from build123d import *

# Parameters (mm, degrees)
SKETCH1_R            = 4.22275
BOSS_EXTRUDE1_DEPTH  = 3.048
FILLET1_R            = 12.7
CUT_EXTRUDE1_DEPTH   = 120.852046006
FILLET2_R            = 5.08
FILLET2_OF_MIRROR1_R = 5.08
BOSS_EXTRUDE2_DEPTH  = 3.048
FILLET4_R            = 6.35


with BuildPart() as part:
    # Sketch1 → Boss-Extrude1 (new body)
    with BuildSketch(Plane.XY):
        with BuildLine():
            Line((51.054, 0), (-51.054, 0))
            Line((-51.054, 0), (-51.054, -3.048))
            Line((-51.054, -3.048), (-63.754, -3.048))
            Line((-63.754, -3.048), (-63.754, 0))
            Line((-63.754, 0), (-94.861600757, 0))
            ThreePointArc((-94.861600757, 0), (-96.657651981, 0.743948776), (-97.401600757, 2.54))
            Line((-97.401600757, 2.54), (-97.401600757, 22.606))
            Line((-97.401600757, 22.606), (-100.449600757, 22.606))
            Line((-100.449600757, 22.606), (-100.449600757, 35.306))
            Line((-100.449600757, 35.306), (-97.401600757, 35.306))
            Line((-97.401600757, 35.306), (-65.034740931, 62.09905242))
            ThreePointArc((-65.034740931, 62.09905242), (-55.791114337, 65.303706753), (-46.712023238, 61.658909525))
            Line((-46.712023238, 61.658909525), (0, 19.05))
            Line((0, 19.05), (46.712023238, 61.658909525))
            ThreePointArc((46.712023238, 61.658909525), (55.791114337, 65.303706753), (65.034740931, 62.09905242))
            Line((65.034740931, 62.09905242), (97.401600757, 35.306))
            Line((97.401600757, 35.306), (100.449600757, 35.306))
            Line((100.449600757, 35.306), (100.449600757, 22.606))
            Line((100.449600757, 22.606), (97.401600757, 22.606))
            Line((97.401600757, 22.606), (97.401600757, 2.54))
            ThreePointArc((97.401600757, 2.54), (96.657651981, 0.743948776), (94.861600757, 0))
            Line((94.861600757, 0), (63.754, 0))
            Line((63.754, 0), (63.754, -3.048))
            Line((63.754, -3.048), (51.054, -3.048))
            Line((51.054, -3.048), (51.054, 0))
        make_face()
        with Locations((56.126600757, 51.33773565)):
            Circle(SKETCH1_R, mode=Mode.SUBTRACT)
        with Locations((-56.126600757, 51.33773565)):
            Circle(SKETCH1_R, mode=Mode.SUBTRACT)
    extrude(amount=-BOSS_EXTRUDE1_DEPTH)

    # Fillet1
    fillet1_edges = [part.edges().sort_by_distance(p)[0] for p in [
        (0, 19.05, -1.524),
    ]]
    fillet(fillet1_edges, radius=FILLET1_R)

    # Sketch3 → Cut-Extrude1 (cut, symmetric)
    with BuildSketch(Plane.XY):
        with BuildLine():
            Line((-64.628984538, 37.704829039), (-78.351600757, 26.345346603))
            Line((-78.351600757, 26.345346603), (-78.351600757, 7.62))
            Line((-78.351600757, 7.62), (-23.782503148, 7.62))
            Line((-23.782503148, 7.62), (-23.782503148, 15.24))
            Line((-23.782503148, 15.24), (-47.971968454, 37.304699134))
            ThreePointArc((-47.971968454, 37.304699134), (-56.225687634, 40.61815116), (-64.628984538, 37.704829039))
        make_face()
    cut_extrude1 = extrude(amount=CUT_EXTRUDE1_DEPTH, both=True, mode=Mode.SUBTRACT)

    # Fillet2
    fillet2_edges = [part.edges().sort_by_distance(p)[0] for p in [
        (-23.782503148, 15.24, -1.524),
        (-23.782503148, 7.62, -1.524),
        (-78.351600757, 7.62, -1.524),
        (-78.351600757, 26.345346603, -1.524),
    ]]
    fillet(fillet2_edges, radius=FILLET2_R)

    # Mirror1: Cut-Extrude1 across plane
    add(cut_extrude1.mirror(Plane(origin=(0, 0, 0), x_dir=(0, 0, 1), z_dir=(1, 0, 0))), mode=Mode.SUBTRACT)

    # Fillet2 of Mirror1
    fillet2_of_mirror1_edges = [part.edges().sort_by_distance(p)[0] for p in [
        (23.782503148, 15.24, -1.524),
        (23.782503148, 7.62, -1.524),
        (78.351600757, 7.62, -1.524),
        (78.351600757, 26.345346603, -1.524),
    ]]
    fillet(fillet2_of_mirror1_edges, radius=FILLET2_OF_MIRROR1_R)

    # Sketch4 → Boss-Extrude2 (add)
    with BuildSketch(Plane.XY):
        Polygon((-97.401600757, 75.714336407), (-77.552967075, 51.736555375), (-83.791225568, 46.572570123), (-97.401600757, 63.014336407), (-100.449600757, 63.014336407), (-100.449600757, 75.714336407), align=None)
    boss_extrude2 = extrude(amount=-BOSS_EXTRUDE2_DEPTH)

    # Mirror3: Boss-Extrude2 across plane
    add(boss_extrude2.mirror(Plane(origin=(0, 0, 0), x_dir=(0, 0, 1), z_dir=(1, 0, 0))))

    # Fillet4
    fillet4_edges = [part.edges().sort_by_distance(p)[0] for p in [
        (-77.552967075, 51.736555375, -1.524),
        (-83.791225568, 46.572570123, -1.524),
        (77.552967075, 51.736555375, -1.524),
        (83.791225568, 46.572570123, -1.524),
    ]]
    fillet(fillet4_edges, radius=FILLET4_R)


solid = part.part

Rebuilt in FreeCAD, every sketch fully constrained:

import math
import FreeCAD as App
import Part
import Sketcher

V = App.Vector
Q = App.Units.Quantity


def edges_at(feature, points):
    """Names of the edges that pass closest to the given points."""
    edges = feature.Shape.Edges
    near = lambda p: min(range(len(edges)), key=lambda i: edges[i].distToShape(Part.Vertex(*p))[0])
    return sorted({f"Edge{near(p) + 1}" for p in points})


def add_polygon(sketch, points):
    """Adds a closed chain of lines whose ends are joined by coincident constraints."""
    first, n = sketch.GeometryCount, len(points)
    for a, b in zip(points, points[1:] + points[:1]):
        sketch.addGeometry(Part.LineSegment(App.Vector(*a, 0), App.Vector(*b, 0)), False)
    for i in range(n):
        sketch.addConstraint(Sketcher.Constraint("Coincident", first + i, 2, first + (i + 1) % n, 1))

doc = App.newDocument("Part")
body = doc.addObject("PartDesign::Body", "Body")

# Sketch on XY plane
sketch1 = body.newObject("Sketcher::SketchObject", "Sketch")
sketch1.AttachmentSupport = (doc.getObject("XY_Plane"), [""])
sketch1.MapMode = "FlatFace"
sketch1.addGeometry([
    Part.LineSegment(V(-51.054, 0, 0), V(51.054, 0, 0)),  # 0
    Part.LineSegment(V(51.054, 0, 0), V(51.054, -3.048, 0)),  # 1
    Part.LineSegment(V(51.054, -3.048, 0), V(63.754, -3.048, 0)),  # 2
    Part.LineSegment(V(63.754, -3.048, 0), V(63.754, 0, 0)),  # 3
    Part.LineSegment(V(63.754, 0, 0), V(94.861601, 0, 0)),  # 4
    Part.ArcOfCircle(Part.Circle(V(94.861601, 2.54, 0), V(0, 0, 1), 2.54), math.radians(-90), math.radians(0)),  # 5
    Part.LineSegment(V(97.401601, 2.54, 0), V(97.401601, 22.606, 0)),  # 6
    Part.LineSegment(V(97.401601, 22.606, 0), V(100.449601, 22.606, 0)),  # 7
    Part.LineSegment(V(100.449601, 22.606, 0), V(100.449601, 35.306, 0)),  # 8
    Part.LineSegment(V(100.449601, 35.306, 0), V(97.401601, 35.306, 0)),  # 9
    Part.LineSegment(V(97.401601, 35.306, 0), V(65.034741, 62.099052, 0)),  # 10
    Part.ArcOfCircle(Part.Circle(V(56.126601, 51.337736, 0), V(0, 0, 1), 13.97), math.radians(50.382288), math.radians(132.369867)),  # 11
    Part.LineSegment(V(46.712023, 61.65891, 0), V(0, 19.05, 0)),  # 12
    Part.LineSegment(V(0, 19.05, 0), V(-46.712023, 61.65891, 0)),  # 13
    Part.ArcOfCircle(Part.Circle(V(-56.126601, 51.337736, 0), V(0, 0, 1), 13.97), math.radians(47.630133), math.radians(129.617712)),  # 14
    Part.LineSegment(V(-65.034741, 62.099052, 0), V(-97.401601, 35.306, 0)),  # 15
    Part.LineSegment(V(-97.401601, 35.306, 0), V(-100.449601, 35.306, 0)),  # 16
    Part.LineSegment(V(-100.449601, 35.306, 0), V(-100.449601, 22.606, 0)),  # 17
    Part.LineSegment(V(-100.449601, 22.606, 0), V(-97.401601, 22.606, 0)),  # 18
    Part.LineSegment(V(-97.401601, 22.606, 0), V(-97.401601, 2.54, 0)),  # 19
    Part.ArcOfCircle(Part.Circle(V(-94.861601, 2.54, 0), V(0, 0, 1), 2.54), math.radians(-180), math.radians(-90)),  # 20
    Part.LineSegment(V(-94.861601, 0, 0), V(-63.754, 0, 0)),  # 21
    Part.LineSegment(V(-63.754, 0, 0), V(-63.754, -3.048, 0)),  # 22
    Part.LineSegment(V(-63.754, -3.048, 0), V(-51.054, -3.048, 0)),  # 23
    Part.LineSegment(V(-51.054, -3.048, 0), V(-51.054, 0, 0)),  # 24
    Part.Circle(V(56.126601, 51.337736, 0), V(0, 0, 1), 4.22275),  # 25
    Part.Circle(V(-56.126601, 51.337736, 0), V(0, 0, 1), 4.22275),  # 26
], False)
sketch1.addConstraint([
    Sketcher.Constraint("Coincident", 0, 2, 1, 1),
    Sketcher.Constraint("Coincident", 1, 2, 2, 1),
    Sketcher.Constraint("Coincident", 2, 2, 3, 1),
    Sketcher.Constraint("Coincident", 3, 2, 4, 1),
    Sketcher.Constraint("Tangent", 4, 2, 5, 1),
    Sketcher.Constraint("Tangent", 5, 2, 6, 1),
    Sketcher.Constraint("Coincident", 6, 2, 7, 1),
    Sketcher.Constraint("Coincident", 7, 2, 8, 1),
    Sketcher.Constraint("Coincident", 8, 2, 9, 1),
    Sketcher.Constraint("Coincident", 9, 2, 10, 1),
    Sketcher.Constraint("Tangent", 10, 2, 11, 1),
    Sketcher.Constraint("Tangent", 11, 2, 12, 1),
    Sketcher.Constraint("Coincident", 12, 2, 13, 1),
    Sketcher.Constraint("Tangent", 13, 2, 14, 1),
    Sketcher.Constraint("Tangent", 14, 2, 15, 1),
    Sketcher.Constraint("Coincident", 15, 2, 16, 1),
    Sketcher.Constraint("Coincident", 16, 2, 17, 1),
    Sketcher.Constraint("Coincident", 17, 2, 18, 1),
    Sketcher.Constraint("Coincident", 18, 2, 19, 1),
    Sketcher.Constraint("Tangent", 19, 2, 20, 1),
    Sketcher.Constraint("Tangent", 20, 2, 21, 1),
    Sketcher.Constraint("Coincident", 21, 2, 22, 1),
    Sketcher.Constraint("Coincident", 22, 2, 23, 1),
    Sketcher.Constraint("Coincident", 23, 2, 24, 1),
    Sketcher.Constraint("Coincident", 24, 2, 0, 1),
    Sketcher.Constraint("Horizontal", 0),
    Sketcher.Constraint("Vertical", 1),
    Sketcher.Constraint("Horizontal", 2),
    Sketcher.Constraint("Vertical", 3),
    Sketcher.Constraint("Horizontal", 4),
    Sketcher.Constraint("Vertical", 6),
    Sketcher.Constraint("Horizontal", 7),
    Sketcher.Constraint("Vertical", 8),
    Sketcher.Constraint("Horizontal", 9),
    Sketcher.Constraint("Horizontal", 16),
    Sketcher.Constraint("Vertical", 17),
    Sketcher.Constraint("Horizontal", 18),
    Sketcher.Constraint("Vertical", 19),
    Sketcher.Constraint("Horizontal", 21),
    Sketcher.Constraint("Vertical", 22),
    Sketcher.Constraint("Horizontal", 23),
    Sketcher.Constraint("Vertical", 24),
    Sketcher.Constraint("Coincident", 25, 3, 11, 3),
    Sketcher.Constraint("Coincident", 26, 3, 14, 3),
    Sketcher.Constraint("Equal", 11, 14),
    Sketcher.Constraint("Equal", 5, 20),
    Sketcher.Constraint("Equal", 25, 26),
    Sketcher.Constraint("Symmetric", 4, 2, 20, 2, -1, 1),
    Sketcher.Constraint("Symmetric", 0, 2, 24, 2, -1, 1),
    Sketcher.Constraint("Symmetric", 11, 3, 14, 3, -2),
    Sketcher.Constraint("Symmetric", 9, 2, 15, 2, -2),
    Sketcher.Constraint("Symmetric", 7, 2, 17, 2, -2),
    Sketcher.Constraint("Symmetric", 3, 2, 21, 2, -2),
    Sketcher.Constraint("PointOnObject", 12, 2, -2),
    Sketcher.Constraint("Horizontal", 2, 2, 22, 2),
    Sketcher.Constraint("Vertical", 6, 2, 9, 2),
    Sketcher.Constraint("Equal", 18, 1),
    Sketcher.Constraint("Equal", 23, 8),
    Sketcher.Constraint("Radius", 5, Q("0.1 in")),
    Sketcher.Constraint("Radius", 11, Q("0.55 in")),
    Sketcher.Constraint("DistanceX", 2, 1, 2, 2, Q("0.5 in")),
    Sketcher.Constraint("Diameter", 25, Q("0.3325 in")),
    Sketcher.Constraint("DistanceX", 0, 1, 0, 2, Q("4.02 in")),
    Sketcher.Constraint("DistanceX", 7, 1, 7, 2, Q("0.12 in")),
    Sketcher.Constraint("DistanceY", 6, 1, 6, 2, Q("0.79 in")),
    Sketcher.Constraint("DistanceY", -1, 1, 12, 2, Q("0.75 in")),
    Sketcher.Constraint("DistanceX", 11, 3, 5, 3, Q("1.525 in")),
    Sketcher.Constraint("DistanceX", 4, 1, 4, 2, 31.107601),
    Sketcher.Constraint("Distance", 10, 42.017631),
])
pad1 = body.newObject("PartDesign::Pad", "Pad")
pad1.Profile = sketch1
pad1.Length = Q("0.12 in")
pad1.Reversed = True
doc.recompute()

fillet = body.newObject("PartDesign::Fillet", "Fillet")
fillet.Base = (pad1, edges_at(pad1, [(0, 19.05, -1.524)]))
fillet.Radius = Q("0.5 in")

# Sketch on XY plane
sketch2 = body.newObject("Sketcher::SketchObject", "Sketch001")
sketch2.AttachmentSupport = (doc.getObject("XY_Plane"), [""])
sketch2.MapMode = "FlatFace"
sketch2.addGeometry([
    Part.LineSegment(V(-64.628985, 37.704829, 0), V(-78.351601, 26.345347, 0)),  # 0
    Part.LineSegment(V(-78.351601, 26.345347, 0), V(-78.351601, 7.62, 0)),  # 1
    Part.LineSegment(V(-78.351601, 7.62, 0), V(-23.782503, 7.62, 0)),  # 2
    Part.LineSegment(V(-23.782503, 7.62, 0), V(-23.782503, 15.24, 0)),  # 3
    Part.LineSegment(V(-23.782503, 15.24, 0), V(-47.971968, 37.304699, 0)),  # 4
    Part.ArcOfCircle(Part.Circle(V(-56.530675, 27.921814, 0), V(0, 0, 1), 12.7), math.radians(47.630133), math.radians(129.617712)),  # 5
], False)
sketch2.addConstraint([
    Sketcher.Constraint("Coincident", 0, 2, 1, 1),
    Sketcher.Constraint("Coincident", 1, 2, 2, 1),
    Sketcher.Constraint("Coincident", 2, 2, 3, 1),
    Sketcher.Constraint("Coincident", 3, 2, 4, 1),
    Sketcher.Constraint("Tangent", 4, 2, 5, 1),
    Sketcher.Constraint("Tangent", 5, 2, 0, 1),
    Sketcher.Constraint("Vertical", 1),
    Sketcher.Constraint("Horizontal", 2),
    Sketcher.Constraint("Vertical", 3),
    Sketcher.Constraint("Radius", 5, Q("0.5 in")),
    Sketcher.Constraint("DistanceY", 3, 1, 3, 2, Q("0.3 in")),
    Sketcher.Constraint("DistanceY", -1, 1, 1, 2, Q("0.3 in")),
    Sketcher.Constraint("DistanceX", 0, 2, -1, 1, 78.351601),
    Sketcher.Constraint("DistanceY", -1, 1, 4, 2, 37.304699),
    Sketcher.Constraint("DistanceX", 2, 1, 2, 2, 54.569098),
    Sketcher.Constraint("DistanceY", 1, 2, 1, 1, 18.725347),
    Sketcher.Constraint("DistanceX", 4, 2, -1, 1, 47.971968),
])
pocket1 = body.newObject("PartDesign::Pocket", "Pocket")
pocket1.Profile = sketch2
pocket1.Length = 241.704092
pocket1.Midplane = True
doc.recompute()

fillet2 = body.newObject("PartDesign::Fillet", "Fillet001")
fillet2.Base = (pocket1, edges_at(pocket1, [
    (-23.783, 15.24, -1.524),
    (-23.783, 7.62, -1.524),
    (-78.352, 7.62, -1.524),
    (-78.352, 26.345, -1.524),
]))
fillet2.Radius = Q("0.2 in")
doc.recompute()

mirrored = body.newObject("PartDesign::Mirrored", "Mirrored")
mirrored.Originals = [pocket1]
mirrored.MirrorPlane = (doc.getObject("YZ_Plane"), [""])
body.Tip = mirrored
doc.recompute()

fillet3 = body.newObject("PartDesign::Fillet", "Fillet002")
fillet3.Base = (mirrored, edges_at(mirrored, [
    (23.783, 15.24, -1.524),
    (23.783, 7.62, -1.524),
    (78.352, 7.62, -1.524),
    (78.352, 26.345, -1.524),
]))
fillet3.Radius = Q("0.2 in")

# Sketch on XY plane
sketch3 = body.newObject("Sketcher::SketchObject", "Sketch002")
sketch3.AttachmentSupport = (doc.getObject("XY_Plane"), [""])
sketch3.MapMode = "FlatFace"
add_polygon(sketch3, [(-77.552967, 51.736555), (-97.401601, 75.714336), (-100.449601, 75.714336), (-100.449601, 63.014336), (-97.401601, 63.014336), (-83.791226, 46.57257)])  # lines 0-5
sketch3.addConstraint([
    Sketcher.Constraint("Horizontal", 1),
    Sketcher.Constraint("Vertical", 2),
    Sketcher.Constraint("Horizontal", 3),
    Sketcher.Constraint("Parallel", 0, 4),
    Sketcher.Constraint("Perpendicular", 4, 5),
    Sketcher.Constraint("Vertical", 0, 2, 3, 2),
    Sketcher.Constraint("DistanceY", 2, 2, 2, 1, Q("0.5 in")),
    Sketcher.Constraint("DistanceX", 1, 2, 1, 1, Q("0.12 in")),
    Sketcher.Constraint("DistanceX", 0, 2, -1, 1, 97.401601),
    Sketcher.Constraint("Distance", 4, 21.344179),
    Sketcher.Constraint("Distance", 5, 8.098309),
    Sketcher.Constraint("DistanceY", -1, 1, 4, 2, 46.57257),
])
pad2 = body.newObject("PartDesign::Pad", "Pad001")
pad2.Profile = sketch3
pad2.Length = Q("0.12 in")
pad2.Reversed = True
doc.recompute()

mirrored2 = body.newObject("PartDesign::Mirrored", "Mirrored001")
mirrored2.Originals = [pad2]
mirrored2.MirrorPlane = (doc.getObject("YZ_Plane"), [""])
body.Tip = mirrored2
doc.recompute()

fillet4 = body.newObject("PartDesign::Fillet", "Fillet003")
fillet4.Base = (mirrored2, edges_at(mirrored2, [
    (-77.553, 51.737, -1.524),
    (-83.791, 46.573, -1.524),
    (77.553, 51.737, -1.524),
    (83.791, 46.573, -1.524),
]))
fillet4.Radius = Q("0.25 in")

doc.recompute()
